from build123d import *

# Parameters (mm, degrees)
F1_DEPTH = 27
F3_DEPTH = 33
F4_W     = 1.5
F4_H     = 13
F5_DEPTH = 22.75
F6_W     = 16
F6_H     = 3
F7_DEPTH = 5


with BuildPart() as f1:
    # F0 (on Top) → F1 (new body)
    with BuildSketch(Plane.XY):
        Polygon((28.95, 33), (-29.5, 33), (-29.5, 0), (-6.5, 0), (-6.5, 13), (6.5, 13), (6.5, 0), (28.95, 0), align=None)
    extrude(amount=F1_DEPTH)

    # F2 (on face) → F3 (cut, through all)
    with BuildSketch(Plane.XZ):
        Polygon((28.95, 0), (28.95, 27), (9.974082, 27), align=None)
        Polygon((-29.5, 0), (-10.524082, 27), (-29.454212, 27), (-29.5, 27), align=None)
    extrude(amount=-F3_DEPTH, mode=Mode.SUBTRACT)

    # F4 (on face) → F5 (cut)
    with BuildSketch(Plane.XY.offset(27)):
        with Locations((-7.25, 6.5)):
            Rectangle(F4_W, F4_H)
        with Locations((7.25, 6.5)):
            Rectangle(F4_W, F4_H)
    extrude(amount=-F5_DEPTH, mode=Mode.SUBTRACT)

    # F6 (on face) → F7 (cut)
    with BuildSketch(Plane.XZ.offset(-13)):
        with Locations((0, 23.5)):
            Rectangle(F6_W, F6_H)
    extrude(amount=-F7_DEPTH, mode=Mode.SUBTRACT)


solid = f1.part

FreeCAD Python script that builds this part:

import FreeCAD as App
import Part
import Sketcher

V = App.Vector
Q = App.Units.Quantity


def add_polygon(sketch, points):
    """Adds a closed chain of lines whose ends are joined by coincident constraints."""
    first, n = sketch.GeometryCount, len(points)
    for a, b in zip(points, points[1:] + points[:1]):
        sketch.addGeometry(Part.LineSegment(App.Vector(*a, 0), App.Vector(*b, 0)), False)
    for i in range(n):
        sketch.addConstraint(Sketcher.Constraint("Coincident", first + i, 2, first + (i + 1) % n, 1))

doc = App.newDocument("Part")
params = doc.addObject("Spreadsheet::Sheet", "Params")
for row, (alias, value) in enumerate([
    ("sketch1_width", "23 mm"),
    ("sketch1_width2", "13 mm"),
    ("sketch1_height", "33 mm"),
    ("sketch1_width3", "58.45 mm"),
    ("pad1_length", "27 mm"),
    ("sketch2_height", "27 mm"),
    ("sketch3_height", "13 mm"),
    ("sketch3_width", "1.5 mm"),
    ("pocket2_length", "22.75 mm"),
    ("sketch4_width", "16 mm"),
    ("sketch4_height", "3 mm"),
    ("pocket3_length", "5 mm"),
], start=1):
    params.set(f"A{row}", alias)
    params.set(f"B{row}", "=" + value)
    params.setAlias(f"B{row}", alias)

body = doc.addObject("PartDesign::Body", "Body")

# Sketch on XY plane
sketch1 = body.newObject("Sketcher::SketchObject", "Sketch")
sketch1.AttachmentSupport = (doc.getObject("XY_Plane"), [""])
sketch1.MapMode = "FlatFace"
add_polygon(sketch1, [(29, 33), (-30, 33), (-30, 0), (-6, 0), (-6, 13), (6, 13), (6, 0), (29, 0)])  # lines 0-7
sketch1.addConstraint(Sketcher.Constraint("Horizontal", 0))
sketch1.addConstraint(Sketcher.Constraint("Vertical", 1))
sketch1.addConstraint(Sketcher.Constraint("Horizontal", 2))
sketch1.addConstraint(Sketcher.Constraint("Vertical", 3))
sketch1.addConstraint(Sketcher.Constraint("Horizontal", 4))
sketch1.addConstraint(Sketcher.Constraint("Vertical", 5))
sketch1.addConstraint(Sketcher.Constraint("Horizontal", 6))
sketch1.addConstraint(Sketcher.Constraint("Vertical", 7))
sketch1.addConstraint(Sketcher.Constraint("Symmetric", 2, 2, 5, 2, -1, 1))
sketch1.addConstraint(Sketcher.Constraint("PointOnObject", 1, 2, -1))
sketch1.addConstraint(Sketcher.Constraint("Equal", 4, 3))
sketch1.addConstraint(Sketcher.Constraint("DistanceX", 2, 1, 2, 2, Q("23 mm")))
sketch1.addConstraint(Sketcher.Constraint("DistanceX", 4, 1, 4, 2, Q("13 mm")))
sketch1.addConstraint(Sketcher.Constraint("DistanceY", 1, 2, 1, 1, Q("33 mm")))
sketch1.addConstraint(Sketcher.Constraint("DistanceX", 0, 2, 0, 1, Q("58.45 mm")))
sketch1.setExpression("Constraints[19]", "Params.sketch1_width")
sketch1.setExpression("Constraints[20]", "Params.sketch1_width2")
sketch1.setExpression("Constraints[21]", "Params.sketch1_height")
sketch1.setExpression("Constraints[22]", "Params.sketch1_width3")
pad1 = body.newObject("PartDesign::Pad", "Pad")
pad1.Profile = sketch1
pad1.setExpression("Length", "Params.pad1_length")

# Sketch on XZ plane
sketch2 = body.newObject("Sketcher::SketchObject", "Sketch001")
sketch2.AttachmentSupport = (doc.getObject("XZ_Plane"), [""])
sketch2.MapMode = "FlatFace"
add_polygon(sketch2, [(29, 0), (29, 27), (10, 27)])  # lines 0-2
add_polygon(sketch2, [(-30, 0), (-11, 27), (-30, 27)])  # lines 3-5
sketch2.addConstraint(Sketcher.Constraint("Vertical", 0))
sketch2.addConstraint(Sketcher.Constraint("Horizontal", 1))
sketch2.addConstraint(Sketcher.Constraint("Horizontal", 4))
sketch2.addConstraint(Sketcher.Constraint("Vertical", 5))
sketch2.addConstraint(Sketcher.Constraint("PointOnObject", 2, 2, -1))
sketch2.addConstraint(Sketcher.Constraint("PointOnObject", 5, 2, -1))
sketch2.addConstraint(Sketcher.Constraint("Horizontal", 1, 2, 3, 2))
sketch2.addConstraint(Sketcher.Constraint("Equal", 1, 4))
sketch2.addConstraint(Sketcher.Constraint("DistanceY", 0, 1, 0, 2, Q("27 mm")))
sketch2.addConstraint(Sketcher.Constraint("Angle", 2, Q("-54.9 deg")))
sketch2.addConstraint(Sketcher.Constraint("DistanceX", 4, 2, -1, 1, Q("29.5 mm")))
sketch2.addConstraint(Sketcher.Constraint("DistanceX", -1, 1, 0, 2, Q("28.95 mm")))
sketch2.setExpression("Constraints[14]", "Params.sketch2_height")
pocket1 = body.newObject("PartDesign::Pocket", "Pocket")
pocket1.Profile = sketch2
pocket1.Type = "ThroughAll"

# Sketch on XY plane
sketch3 = body.newObject("Sketcher::SketchObject", "Sketch002")
sketch3.AttachmentSupport = (doc.getObject("XY_Plane"), [""])
sketch3.MapMode = "FlatFace"
sketch3.AttachmentOffset = App.Placement(V(0, 0, 27), App.Rotation())
add_polygon(sketch3, [(-8, 13), (-8, 0), (-6.5, 0), (-6.5, 13)])  # lines 0-3
add_polygon(sketch3, [(6.5, 13), (6.5, 0), (8, 0), (8, 13)])  # lines 4-7
sketch3.addConstraint(Sketcher.Constraint("Vertical", 0))
sketch3.addConstraint(Sketcher.Constraint("Horizontal", 1))
sketch3.addConstraint(Sketcher.Constraint("Vertical", 2))
sketch3.addConstraint(Sketcher.Constraint("Horizontal", 3))
sketch3.addConstraint(Sketcher.Constraint("Vertical", 4))
sketch3.addConstraint(Sketcher.Constraint("Horizontal", 5))
sketch3.addConstraint(Sketcher.Constraint("Vertical", 6))
sketch3.addConstraint(Sketcher.Constraint("Horizontal", 7))
sketch3.addConstraint(Sketcher.Constraint("Symmetric", 1, 2, 4, 2, -1, 1))
sketch3.addConstraint(Sketcher.Constraint("Symmetric", 0, 2, 5, 2, -2))
sketch3.addConstraint(Sketcher.Constraint("Horizontal", 3, 2, 6, 2))
sketch3.addConstraint(Sketcher.Constraint("DistanceY", 0, 2, 0, 1, Q("13 mm")))
sketch3.addConstraint(Sketcher.Constraint("DistanceX", 1, 1, 1, 2, Q("1.5 mm")))
sketch3.addConstraint(Sketcher.Constraint("DistanceX", 0, 2, -1, 1, Q("8 mm")))
sketch3.setExpression("Constraints[19]", "Params.sketch3_height")
sketch3.setExpression("Constraints[20]", "Params.sketch3_width")
pocket2 = body.newObject("PartDesign::Pocket", "Pocket001")
pocket2.Profile = sketch3
pocket2.setExpression("Length", "Params.pocket2_length")

# Sketch on XZ plane
sketch4 = body.newObject("Sketcher::SketchObject", "Sketch003")
sketch4.AttachmentSupport = (doc.getObject("XZ_Plane"), [""])
sketch4.MapMode = "FlatFace"
sketch4.AttachmentOffset = App.Placement(V(0, 0, -13), App.Rotation())
add_polygon(sketch4, [(-8, 25), (-8, 22), (8, 22), (8, 25)])  # lines 0-3
sketch4.addConstraint(Sketcher.Constraint("Vertical", 0))
sketch4.addConstraint(Sketcher.Constraint("Horizontal", 1))
sketch4.addConstraint(Sketcher.Constraint("Vertical", 2))
sketch4.addConstraint(Sketcher.Constraint("Horizontal", 3))
sketch4.addConstraint(Sketcher.Constraint("DistanceX", 1, 1, 1, 2, Q("16 mm")))
sketch4.addConstraint(Sketcher.Constraint("DistanceY", 0, 2, 0, 1, Q("3 mm")))
sketch4.addConstraint(Sketcher.Constraint("DistanceX", 0, 2, -1, 1, Q("8 mm")))
sketch4.addConstraint(Sketcher.Constraint("DistanceY", -1, 1, 0, 2, Q("22 mm")))
sketch4.setExpression("Constraints[8]", "Params.sketch4_width")
sketch4.setExpression("Constraints[9]", "Params.sketch4_height")
pocket3 = body.newObject("PartDesign::Pocket", "Pocket002")
pocket3.Profile = sketch4
pocket3.setExpression("Length", "Params.pocket3_length")

doc.recompute()
